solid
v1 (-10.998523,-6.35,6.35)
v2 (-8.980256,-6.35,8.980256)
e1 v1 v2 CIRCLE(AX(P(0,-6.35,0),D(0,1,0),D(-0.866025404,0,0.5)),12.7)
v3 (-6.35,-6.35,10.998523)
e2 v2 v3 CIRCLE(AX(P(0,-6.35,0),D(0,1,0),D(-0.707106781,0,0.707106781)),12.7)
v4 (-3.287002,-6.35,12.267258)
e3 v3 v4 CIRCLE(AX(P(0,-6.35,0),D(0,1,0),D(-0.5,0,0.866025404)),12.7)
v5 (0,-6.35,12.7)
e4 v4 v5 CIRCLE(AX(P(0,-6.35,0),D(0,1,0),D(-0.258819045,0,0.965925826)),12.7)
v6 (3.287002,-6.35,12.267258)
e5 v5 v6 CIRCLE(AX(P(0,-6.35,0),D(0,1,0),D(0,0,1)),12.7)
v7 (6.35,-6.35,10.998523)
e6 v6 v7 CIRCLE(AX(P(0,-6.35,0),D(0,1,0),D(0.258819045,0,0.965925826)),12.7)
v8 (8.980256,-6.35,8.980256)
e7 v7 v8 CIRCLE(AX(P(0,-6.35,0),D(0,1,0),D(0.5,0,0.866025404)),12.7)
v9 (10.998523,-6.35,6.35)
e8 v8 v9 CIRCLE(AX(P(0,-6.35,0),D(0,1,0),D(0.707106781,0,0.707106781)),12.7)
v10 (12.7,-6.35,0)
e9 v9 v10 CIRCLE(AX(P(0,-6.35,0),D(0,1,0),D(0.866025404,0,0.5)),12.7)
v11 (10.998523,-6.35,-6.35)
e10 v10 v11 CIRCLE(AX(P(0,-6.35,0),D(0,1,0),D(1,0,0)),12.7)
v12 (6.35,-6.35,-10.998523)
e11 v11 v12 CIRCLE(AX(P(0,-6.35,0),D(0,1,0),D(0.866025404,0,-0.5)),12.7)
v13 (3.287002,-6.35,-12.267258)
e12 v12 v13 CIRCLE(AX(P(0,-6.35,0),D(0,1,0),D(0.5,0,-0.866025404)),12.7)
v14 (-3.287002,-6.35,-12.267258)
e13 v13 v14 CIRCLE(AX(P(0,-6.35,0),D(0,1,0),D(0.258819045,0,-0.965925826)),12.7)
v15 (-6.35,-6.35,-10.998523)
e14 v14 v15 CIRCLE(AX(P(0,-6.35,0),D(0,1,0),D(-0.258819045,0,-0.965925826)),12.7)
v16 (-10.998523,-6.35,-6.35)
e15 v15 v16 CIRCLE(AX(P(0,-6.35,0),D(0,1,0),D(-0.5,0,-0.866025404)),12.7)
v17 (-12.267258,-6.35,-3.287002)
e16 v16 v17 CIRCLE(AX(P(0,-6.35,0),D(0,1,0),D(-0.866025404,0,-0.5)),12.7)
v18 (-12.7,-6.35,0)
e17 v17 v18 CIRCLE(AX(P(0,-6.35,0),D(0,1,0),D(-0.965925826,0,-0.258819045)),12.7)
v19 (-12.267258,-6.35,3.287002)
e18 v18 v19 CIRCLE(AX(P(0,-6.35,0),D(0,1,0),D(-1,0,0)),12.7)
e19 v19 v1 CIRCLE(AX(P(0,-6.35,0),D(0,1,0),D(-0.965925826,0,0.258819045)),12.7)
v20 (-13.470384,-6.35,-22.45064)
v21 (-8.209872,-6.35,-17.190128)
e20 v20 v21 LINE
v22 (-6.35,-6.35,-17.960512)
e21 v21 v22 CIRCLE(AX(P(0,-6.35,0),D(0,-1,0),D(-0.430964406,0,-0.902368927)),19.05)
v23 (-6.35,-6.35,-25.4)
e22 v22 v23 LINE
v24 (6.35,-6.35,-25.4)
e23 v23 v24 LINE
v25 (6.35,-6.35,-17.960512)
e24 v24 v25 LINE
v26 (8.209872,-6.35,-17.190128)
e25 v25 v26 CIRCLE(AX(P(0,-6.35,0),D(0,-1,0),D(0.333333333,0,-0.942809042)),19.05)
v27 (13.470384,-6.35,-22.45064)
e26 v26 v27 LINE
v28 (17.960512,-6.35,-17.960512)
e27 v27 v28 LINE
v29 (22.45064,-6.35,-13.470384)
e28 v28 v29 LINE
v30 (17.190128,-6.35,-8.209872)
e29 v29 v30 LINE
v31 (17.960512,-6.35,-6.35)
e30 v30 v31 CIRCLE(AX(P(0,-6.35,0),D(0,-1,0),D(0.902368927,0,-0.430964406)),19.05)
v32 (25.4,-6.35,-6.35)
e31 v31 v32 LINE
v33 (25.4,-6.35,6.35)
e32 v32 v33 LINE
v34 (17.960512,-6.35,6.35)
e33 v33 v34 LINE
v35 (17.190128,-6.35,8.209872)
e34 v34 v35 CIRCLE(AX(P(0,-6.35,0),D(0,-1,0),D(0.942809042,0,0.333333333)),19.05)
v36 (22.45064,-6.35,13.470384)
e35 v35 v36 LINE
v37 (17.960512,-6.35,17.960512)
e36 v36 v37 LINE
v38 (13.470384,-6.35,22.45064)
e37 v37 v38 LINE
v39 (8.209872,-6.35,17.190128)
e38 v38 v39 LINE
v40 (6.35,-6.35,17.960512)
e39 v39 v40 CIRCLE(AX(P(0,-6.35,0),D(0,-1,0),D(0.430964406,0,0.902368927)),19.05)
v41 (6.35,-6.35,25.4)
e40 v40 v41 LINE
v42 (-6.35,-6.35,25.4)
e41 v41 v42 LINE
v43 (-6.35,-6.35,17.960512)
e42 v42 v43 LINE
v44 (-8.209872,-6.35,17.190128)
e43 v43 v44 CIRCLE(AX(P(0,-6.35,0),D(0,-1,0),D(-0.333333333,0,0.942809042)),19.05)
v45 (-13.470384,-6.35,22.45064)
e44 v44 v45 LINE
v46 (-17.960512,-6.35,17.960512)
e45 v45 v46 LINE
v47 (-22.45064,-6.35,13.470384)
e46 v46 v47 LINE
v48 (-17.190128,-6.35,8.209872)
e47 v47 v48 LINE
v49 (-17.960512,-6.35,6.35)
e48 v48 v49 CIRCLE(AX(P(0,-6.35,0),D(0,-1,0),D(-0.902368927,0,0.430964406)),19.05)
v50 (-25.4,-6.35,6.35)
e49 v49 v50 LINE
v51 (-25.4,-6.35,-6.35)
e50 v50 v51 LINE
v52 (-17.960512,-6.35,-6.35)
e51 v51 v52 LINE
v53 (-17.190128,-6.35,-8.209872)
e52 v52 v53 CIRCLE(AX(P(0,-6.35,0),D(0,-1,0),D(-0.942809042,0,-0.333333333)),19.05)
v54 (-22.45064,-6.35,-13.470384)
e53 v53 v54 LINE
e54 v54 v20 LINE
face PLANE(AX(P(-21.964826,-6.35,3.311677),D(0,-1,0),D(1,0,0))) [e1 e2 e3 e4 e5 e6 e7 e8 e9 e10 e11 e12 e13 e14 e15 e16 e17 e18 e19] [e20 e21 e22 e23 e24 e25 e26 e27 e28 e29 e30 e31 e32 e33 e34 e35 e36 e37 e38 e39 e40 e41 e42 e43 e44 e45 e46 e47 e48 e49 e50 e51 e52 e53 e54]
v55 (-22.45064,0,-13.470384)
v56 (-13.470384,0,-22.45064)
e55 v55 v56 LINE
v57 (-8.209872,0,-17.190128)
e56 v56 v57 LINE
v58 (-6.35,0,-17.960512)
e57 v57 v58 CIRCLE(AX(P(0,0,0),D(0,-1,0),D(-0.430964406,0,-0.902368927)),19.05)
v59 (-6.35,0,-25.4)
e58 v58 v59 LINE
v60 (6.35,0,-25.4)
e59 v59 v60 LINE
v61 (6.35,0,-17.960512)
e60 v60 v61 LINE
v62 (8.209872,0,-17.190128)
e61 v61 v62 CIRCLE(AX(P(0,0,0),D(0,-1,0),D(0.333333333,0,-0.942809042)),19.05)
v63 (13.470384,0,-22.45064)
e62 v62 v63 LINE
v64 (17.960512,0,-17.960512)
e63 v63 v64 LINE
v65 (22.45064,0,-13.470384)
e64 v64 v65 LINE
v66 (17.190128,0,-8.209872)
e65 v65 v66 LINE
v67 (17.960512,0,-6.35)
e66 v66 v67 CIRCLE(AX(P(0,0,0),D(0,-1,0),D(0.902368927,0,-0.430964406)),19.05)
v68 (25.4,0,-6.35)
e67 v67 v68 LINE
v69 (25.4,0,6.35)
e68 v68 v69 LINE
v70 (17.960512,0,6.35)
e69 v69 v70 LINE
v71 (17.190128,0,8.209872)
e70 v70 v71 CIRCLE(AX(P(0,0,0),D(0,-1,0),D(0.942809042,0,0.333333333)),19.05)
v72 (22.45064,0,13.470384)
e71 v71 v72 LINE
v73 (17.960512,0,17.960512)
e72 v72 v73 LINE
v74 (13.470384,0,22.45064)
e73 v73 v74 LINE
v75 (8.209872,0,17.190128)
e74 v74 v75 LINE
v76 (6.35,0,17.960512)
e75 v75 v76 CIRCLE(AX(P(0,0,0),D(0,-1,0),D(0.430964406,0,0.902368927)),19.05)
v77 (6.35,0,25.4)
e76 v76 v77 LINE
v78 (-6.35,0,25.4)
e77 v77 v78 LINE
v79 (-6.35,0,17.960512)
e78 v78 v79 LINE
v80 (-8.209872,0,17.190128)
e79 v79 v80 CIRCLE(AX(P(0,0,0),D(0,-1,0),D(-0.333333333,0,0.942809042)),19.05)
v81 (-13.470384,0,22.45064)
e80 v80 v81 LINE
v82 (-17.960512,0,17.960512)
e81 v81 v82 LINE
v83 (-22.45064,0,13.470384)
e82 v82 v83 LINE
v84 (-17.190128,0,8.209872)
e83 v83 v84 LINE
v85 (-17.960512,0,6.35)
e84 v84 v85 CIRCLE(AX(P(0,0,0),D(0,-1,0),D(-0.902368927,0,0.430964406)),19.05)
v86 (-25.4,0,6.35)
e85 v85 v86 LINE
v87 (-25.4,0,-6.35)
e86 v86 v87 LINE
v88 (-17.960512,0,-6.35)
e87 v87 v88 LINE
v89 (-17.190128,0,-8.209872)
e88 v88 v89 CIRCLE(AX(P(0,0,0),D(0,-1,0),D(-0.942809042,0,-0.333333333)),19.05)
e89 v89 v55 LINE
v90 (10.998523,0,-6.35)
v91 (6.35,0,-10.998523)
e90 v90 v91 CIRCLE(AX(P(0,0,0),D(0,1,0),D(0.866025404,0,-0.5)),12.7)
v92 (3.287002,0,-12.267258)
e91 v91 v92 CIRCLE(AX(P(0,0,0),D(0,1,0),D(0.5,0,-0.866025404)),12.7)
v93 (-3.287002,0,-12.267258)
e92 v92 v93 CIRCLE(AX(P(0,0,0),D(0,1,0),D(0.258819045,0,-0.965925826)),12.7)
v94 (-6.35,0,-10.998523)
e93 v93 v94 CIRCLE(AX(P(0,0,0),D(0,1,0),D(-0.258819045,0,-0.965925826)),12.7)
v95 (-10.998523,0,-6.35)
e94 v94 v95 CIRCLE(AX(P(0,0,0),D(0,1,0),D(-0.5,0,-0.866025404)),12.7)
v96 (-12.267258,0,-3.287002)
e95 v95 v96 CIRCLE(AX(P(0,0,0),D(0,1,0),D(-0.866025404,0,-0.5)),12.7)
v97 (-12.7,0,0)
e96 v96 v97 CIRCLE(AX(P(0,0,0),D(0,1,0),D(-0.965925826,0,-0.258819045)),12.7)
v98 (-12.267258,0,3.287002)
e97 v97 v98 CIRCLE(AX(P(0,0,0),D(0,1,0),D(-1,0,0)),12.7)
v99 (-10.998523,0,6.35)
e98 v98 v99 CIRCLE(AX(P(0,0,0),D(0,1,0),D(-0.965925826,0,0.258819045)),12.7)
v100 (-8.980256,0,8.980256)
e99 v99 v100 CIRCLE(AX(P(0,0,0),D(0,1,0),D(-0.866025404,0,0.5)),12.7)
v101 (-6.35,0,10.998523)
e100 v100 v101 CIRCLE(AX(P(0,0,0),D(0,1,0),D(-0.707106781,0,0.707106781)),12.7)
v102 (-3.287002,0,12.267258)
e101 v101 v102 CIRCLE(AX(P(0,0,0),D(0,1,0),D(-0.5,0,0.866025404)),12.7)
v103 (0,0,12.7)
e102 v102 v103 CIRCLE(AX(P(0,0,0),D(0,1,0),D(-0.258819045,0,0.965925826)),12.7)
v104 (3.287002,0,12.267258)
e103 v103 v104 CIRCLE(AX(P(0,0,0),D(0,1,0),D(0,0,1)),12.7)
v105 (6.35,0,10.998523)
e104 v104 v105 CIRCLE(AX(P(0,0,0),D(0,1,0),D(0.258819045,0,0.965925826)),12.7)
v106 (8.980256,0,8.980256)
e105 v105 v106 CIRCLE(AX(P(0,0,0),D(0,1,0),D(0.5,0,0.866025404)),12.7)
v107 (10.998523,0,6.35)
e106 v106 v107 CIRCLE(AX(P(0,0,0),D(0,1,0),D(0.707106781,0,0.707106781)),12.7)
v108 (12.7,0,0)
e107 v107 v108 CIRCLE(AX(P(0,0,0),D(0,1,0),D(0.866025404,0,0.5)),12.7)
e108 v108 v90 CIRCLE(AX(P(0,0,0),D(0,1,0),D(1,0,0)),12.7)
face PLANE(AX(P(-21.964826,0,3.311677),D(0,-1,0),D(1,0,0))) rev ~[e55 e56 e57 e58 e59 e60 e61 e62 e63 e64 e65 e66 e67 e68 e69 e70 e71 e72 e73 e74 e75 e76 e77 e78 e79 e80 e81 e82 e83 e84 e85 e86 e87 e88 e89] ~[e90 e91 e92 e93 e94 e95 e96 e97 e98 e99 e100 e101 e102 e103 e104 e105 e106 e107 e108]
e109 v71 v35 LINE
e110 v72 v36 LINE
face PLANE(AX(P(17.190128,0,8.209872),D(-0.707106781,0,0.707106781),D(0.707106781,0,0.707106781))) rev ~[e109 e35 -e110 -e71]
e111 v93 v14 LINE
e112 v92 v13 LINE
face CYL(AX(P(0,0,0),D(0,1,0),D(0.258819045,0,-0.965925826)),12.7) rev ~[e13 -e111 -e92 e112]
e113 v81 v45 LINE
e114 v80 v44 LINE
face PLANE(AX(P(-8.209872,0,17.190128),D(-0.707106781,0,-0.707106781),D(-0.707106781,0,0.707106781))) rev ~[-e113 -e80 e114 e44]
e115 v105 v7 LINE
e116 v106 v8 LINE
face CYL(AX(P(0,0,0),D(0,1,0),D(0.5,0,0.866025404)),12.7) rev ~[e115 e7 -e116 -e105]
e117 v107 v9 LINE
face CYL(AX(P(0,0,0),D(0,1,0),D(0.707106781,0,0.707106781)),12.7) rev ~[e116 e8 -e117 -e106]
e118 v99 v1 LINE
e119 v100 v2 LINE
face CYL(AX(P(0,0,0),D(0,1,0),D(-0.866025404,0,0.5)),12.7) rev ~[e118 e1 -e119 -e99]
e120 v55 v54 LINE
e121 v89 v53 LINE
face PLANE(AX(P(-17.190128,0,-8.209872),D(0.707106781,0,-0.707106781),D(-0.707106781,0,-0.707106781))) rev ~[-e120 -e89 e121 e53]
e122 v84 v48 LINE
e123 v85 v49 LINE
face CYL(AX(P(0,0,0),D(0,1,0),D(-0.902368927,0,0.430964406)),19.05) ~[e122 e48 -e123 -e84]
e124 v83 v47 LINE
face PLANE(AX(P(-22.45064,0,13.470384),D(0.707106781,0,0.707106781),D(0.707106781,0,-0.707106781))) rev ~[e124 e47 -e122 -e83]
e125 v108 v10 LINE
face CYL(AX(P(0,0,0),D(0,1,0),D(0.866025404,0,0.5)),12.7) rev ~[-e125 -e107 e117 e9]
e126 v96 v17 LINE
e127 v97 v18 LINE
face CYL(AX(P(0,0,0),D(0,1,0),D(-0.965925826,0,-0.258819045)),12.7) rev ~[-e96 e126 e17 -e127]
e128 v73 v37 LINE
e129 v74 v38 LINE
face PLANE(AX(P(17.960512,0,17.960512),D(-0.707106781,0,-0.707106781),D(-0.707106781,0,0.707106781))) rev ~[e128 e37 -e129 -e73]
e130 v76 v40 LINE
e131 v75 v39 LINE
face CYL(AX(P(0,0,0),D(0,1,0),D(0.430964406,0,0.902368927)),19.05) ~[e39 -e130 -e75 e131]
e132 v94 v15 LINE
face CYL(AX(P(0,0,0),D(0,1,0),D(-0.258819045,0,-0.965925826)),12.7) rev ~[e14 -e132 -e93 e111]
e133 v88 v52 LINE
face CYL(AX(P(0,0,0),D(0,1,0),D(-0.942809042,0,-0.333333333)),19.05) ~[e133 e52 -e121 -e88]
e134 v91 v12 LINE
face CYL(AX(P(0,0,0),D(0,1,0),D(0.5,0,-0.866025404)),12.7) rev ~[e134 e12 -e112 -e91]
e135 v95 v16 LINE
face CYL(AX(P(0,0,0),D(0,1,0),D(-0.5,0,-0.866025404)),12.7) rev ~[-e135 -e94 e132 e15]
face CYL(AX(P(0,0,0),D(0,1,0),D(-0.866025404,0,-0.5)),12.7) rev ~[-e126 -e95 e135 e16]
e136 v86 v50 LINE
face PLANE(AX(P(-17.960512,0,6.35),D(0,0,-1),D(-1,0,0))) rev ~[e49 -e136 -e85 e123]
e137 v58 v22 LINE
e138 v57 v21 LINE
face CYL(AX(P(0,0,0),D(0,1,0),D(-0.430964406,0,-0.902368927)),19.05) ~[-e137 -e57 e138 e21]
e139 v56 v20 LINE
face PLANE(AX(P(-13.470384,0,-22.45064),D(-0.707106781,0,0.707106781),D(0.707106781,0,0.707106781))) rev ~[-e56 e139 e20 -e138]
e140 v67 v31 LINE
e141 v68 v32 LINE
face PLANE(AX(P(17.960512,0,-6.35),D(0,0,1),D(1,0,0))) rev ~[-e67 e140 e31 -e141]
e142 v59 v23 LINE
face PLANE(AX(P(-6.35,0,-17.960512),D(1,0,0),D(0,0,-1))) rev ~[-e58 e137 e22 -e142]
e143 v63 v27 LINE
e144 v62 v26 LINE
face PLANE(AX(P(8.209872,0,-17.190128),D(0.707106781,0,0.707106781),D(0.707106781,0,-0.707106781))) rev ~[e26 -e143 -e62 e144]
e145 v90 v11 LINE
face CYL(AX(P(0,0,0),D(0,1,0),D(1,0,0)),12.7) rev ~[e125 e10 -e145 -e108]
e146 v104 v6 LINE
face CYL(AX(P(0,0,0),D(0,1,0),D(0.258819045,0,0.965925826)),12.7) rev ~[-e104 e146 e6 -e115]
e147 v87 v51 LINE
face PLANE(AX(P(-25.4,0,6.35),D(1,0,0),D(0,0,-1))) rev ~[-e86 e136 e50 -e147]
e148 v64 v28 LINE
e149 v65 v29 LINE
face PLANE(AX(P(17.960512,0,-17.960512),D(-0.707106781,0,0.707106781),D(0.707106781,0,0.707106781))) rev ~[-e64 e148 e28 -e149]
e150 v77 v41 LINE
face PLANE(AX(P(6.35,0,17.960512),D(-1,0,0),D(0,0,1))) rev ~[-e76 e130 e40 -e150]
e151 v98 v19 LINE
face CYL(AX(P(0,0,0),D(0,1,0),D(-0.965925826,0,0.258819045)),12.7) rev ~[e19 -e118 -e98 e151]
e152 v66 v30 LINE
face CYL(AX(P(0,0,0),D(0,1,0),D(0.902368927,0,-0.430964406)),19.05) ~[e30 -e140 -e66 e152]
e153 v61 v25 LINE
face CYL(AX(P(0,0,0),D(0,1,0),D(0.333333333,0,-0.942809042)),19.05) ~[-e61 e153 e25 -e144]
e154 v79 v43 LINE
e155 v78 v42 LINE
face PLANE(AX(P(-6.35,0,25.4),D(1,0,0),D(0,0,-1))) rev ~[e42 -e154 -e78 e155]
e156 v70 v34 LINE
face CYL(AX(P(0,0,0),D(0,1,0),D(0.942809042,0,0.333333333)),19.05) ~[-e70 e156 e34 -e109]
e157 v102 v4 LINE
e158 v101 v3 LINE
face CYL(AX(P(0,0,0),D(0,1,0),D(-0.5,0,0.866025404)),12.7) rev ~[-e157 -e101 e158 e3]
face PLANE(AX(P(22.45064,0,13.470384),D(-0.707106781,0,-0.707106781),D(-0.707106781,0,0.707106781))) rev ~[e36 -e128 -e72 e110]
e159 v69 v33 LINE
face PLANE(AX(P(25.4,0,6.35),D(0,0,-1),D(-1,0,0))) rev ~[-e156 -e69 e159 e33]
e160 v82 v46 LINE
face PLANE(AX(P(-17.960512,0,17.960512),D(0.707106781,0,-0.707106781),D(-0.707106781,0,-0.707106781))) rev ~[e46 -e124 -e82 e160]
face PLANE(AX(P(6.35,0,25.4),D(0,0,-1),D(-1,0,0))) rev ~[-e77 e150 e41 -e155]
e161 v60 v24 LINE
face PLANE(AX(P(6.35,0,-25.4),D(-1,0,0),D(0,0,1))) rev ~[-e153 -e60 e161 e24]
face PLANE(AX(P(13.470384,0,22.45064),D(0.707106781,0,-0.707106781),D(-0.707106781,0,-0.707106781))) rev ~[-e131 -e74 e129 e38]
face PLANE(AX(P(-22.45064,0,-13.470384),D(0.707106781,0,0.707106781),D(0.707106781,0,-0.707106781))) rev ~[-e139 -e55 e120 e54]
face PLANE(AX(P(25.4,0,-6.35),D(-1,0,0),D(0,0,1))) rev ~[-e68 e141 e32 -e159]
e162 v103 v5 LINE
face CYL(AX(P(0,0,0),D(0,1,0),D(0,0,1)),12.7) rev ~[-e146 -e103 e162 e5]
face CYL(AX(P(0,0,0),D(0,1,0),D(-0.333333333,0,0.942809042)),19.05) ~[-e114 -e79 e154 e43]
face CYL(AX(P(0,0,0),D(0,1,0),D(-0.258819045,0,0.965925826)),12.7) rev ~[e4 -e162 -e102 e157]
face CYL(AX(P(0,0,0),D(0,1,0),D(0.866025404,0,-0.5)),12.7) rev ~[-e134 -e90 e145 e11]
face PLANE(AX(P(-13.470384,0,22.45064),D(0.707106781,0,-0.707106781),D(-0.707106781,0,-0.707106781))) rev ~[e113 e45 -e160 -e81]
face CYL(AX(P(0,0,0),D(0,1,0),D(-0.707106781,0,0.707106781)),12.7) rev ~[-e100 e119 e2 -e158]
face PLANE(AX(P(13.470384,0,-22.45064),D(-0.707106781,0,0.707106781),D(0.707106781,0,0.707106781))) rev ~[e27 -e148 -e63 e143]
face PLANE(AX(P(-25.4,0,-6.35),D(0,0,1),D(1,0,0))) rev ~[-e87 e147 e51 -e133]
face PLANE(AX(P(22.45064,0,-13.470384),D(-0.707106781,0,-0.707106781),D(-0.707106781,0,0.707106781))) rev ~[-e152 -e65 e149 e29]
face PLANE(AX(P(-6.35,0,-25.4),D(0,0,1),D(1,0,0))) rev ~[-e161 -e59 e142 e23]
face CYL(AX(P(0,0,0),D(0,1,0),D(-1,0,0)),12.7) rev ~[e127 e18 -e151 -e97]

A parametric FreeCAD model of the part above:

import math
import FreeCAD as App
import Part
import Sketcher
Q = App.Units.Quantity

doc = App.newDocument("Part")
body = doc.addObject("PartDesign::Body", "Body")

sketch1 = body.newObject("Sketcher::SketchObject", "Sketch")
sketch1.AttachmentSupport = (doc.getObject("XZ_Plane"), [""])
sketch1.MapMode = "FlatFace"
sketch1.addGeometry(Part.LineSegment(App.Vector(-25.4, -6.3, 0), App.Vector(-18, -6.3, 0)), False)
sketch1.addGeometry(Part.ArcOfCircle(Part.Circle(App.Vector(0, 0, 0), App.Vector(0, 0, 1), 19), math.radians(-160.53), math.radians(-154.47)), False)
sketch1.addGeometry(Part.LineSegment(App.Vector(-17.2, -8.2, 0), App.Vector(-22.5, -13.5, 0)), False)
sketch1.addGeometry(Part.LineSegment(App.Vector(-22.5, -13.5, 0), App.Vector(-13.5, -22.5, 0)), False)
sketch1.addGeometry(Part.LineSegment(App.Vector(-13.5, -22.5, 0), App.Vector(-8.2, -17.2, 0)), False)
sketch1.addGeometry(Part.ArcOfCircle(Part.Circle(App.Vector(0, 0, 0), App.Vector(0, 0, 1), 19), math.radians(-115.53), math.radians(-109.47)), False)
sketch1.addGeometry(Part.LineSegment(App.Vector(-6.3, -18, 0), App.Vector(-6.3, -25.4, 0)), False)
sketch1.addGeometry(Part.LineSegment(App.Vector(-6.3, -25.4, 0), App.Vector(6.3, -25.4, 0)), False)
sketch1.addGeometry(Part.LineSegment(App.Vector(6.3, -25.4, 0), App.Vector(6.3, -18, 0)), False)
sketch1.addGeometry(Part.ArcOfCircle(Part.Circle(App.Vector(0, 0, 0), App.Vector(0, 0, 1), 19), math.radians(-70.53), math.radians(-64.47)), False)
sketch1.addGeometry(Part.LineSegment(App.Vector(8.2, -17.2, 0), App.Vector(13.5, -22.5, 0)), False)
sketch1.addGeometry(Part.LineSegment(App.Vector(13.5, -22.5, 0), App.Vector(18, -18, 0)), False)
sketch1.addGeometry(Part.LineSegment(App.Vector(18, -18, 0), App.Vector(22.5, -13.5, 0)), False)
sketch1.addGeometry(Part.LineSegment(App.Vector(22.5, -13.5, 0), App.Vector(17.2, -8.2, 0)), False)
sketch1.addGeometry(Part.ArcOfCircle(Part.Circle(App.Vector(0, 0, 0), App.Vector(0, 0, 1), 19), math.radians(-25.53), math.radians(-19.47)), False)
sketch1.addGeometry(Part.LineSegment(App.Vector(18, -6.3, 0), App.Vector(25.4, -6.3, 0)), False)
sketch1.addGeometry(Part.LineSegment(App.Vector(25.4, -6.3, 0), App.Vector(25.4, 6.3, 0)), False)
sketch1.addGeometry(Part.LineSegment(App.Vector(25.4, 6.3, 0), App.Vector(18, 6.3, 0)), False)
sketch1.addGeometry(Part.ArcOfCircle(Part.Circle(App.Vector(0, 0, 0), App.Vector(0, 0, 1), 19), math.radians(19.47), math.radians(25.53)), False)
sketch1.addGeometry(Part.LineSegment(App.Vector(17.2, 8.2, 0), App.Vector(22.5, 13.5, 0)), False)
sketch1.addGeometry(Part.LineSegment(App.Vector(22.5, 13.5, 0), App.Vector(18, 18, 0)), False)
sketch1.addGeometry(Part.LineSegment(App.Vector(18, 18, 0), App.Vector(13.5, 22.5, 0)), False)
sketch1.addGeometry(Part.LineSegment(App.Vector(13.5, 22.5, 0), App.Vector(8.2, 17.2, 0)), False)
sketch1.addGeometry(Part.ArcOfCircle(Part.Circle(App.Vector(0, 0, 0), App.Vector(0, 0, 1), 19), math.radians(64.47), math.radians(70.53)), False)
sketch1.addGeometry(Part.LineSegment(App.Vector(6.3, 18, 0), App.Vector(6.3, 25.4, 0)), False)
sketch1.addGeometry(Part.LineSegment(App.Vector(6.3, 25.4, 0), App.Vector(-6.3, 25.4, 0)), False)
sketch1.addGeometry(Part.LineSegment(App.Vector(-6.3, 25.4, 0), App.Vector(-6.3, 18, 0)), False)
sketch1.addGeometry(Part.ArcOfCircle(Part.Circle(App.Vector(0, 0, 0), App.Vector(0, 0, 1), 19), math.radians(109.47), math.radians(115.53)), False)
sketch1.addGeometry(Part.LineSegment(App.Vector(-8.2, 17.2, 0), App.Vector(-13.5, 22.5, 0)), False)
sketch1.addGeometry(Part.LineSegment(App.Vector(-13.5, 22.5, 0), App.Vector(-18, 18, 0)), False)
sketch1.addGeometry(Part.LineSegment(App.Vector(-18, 18, 0), App.Vector(-22.5, 13.5, 0)), False)
sketch1.addGeometry(Part.LineSegment(App.Vector(-22.5, 13.5, 0), App.Vector(-17.2, 8.2, 0)), False)
sketch1.addGeometry(Part.ArcOfCircle(Part.Circle(App.Vector(0, 0, 0), App.Vector(0, 0, 1), 19), math.radians(154.47), math.radians(160.53)), False)
sketch1.addGeometry(Part.LineSegment(App.Vector(-18, 6.3, 0), App.Vector(-25.4, 6.3, 0)), False)
sketch1.addGeometry(Part.LineSegment(App.Vector(-25.4, 6.3, 0), App.Vector(-25.4, -6.3, 0)), False)
sketch1.addGeometry(Part.ArcOfCircle(Part.Circle(App.Vector(0, 0, 0), App.Vector(0, 0, 1), 12.7), math.radians(-150), math.radians(-120)), False)
sketch1.addGeometry(Part.ArcOfCircle(Part.Circle(App.Vector(0, 0, 0), App.Vector(0, 0, 1), 12.7), math.radians(-165), math.radians(-150)), False)
sketch1.addGeometry(Part.ArcOfCircle(Part.Circle(App.Vector(0, 0, 0), App.Vector(0, 0, 1), 12.7), math.radians(-180), math.radians(-165)), False)
sketch1.addGeometry(Part.ArcOfCircle(Part.Circle(App.Vector(0, 0, 0), App.Vector(0, 0, 1), 12.7), math.radians(165), math.radians(180)), False)
sketch1.addGeometry(Part.ArcOfCircle(Part.Circle(App.Vector(0, 0, 0), App.Vector(0, 0, 1), 12.7), math.radians(150), math.radians(165)), False)
sketch1.addGeometry(Part.ArcOfCircle(Part.Circle(App.Vector(0, 0, 0), App.Vector(0, 0, 1), 12.7), math.radians(135), math.radians(150)), False)
sketch1.addGeometry(Part.ArcOfCircle(Part.Circle(App.Vector(0, 0, 0), App.Vector(0, 0, 1), 12.7), math.radians(120), math.radians(135)), False)
sketch1.addGeometry(Part.ArcOfCircle(Part.Circle(App.Vector(0, 0, 0), App.Vector(0, 0, 1), 12.7), math.radians(105), math.radians(120)), False)
sketch1.addGeometry(Part.ArcOfCircle(Part.Circle(App.Vector(0, 0, 0), App.Vector(0, 0, 1), 12.7), math.radians(90), math.radians(105)), False)
sketch1.addGeometry(Part.ArcOfCircle(Part.Circle(App.Vector(0, 0, 0), App.Vector(0, 0, 1), 12.7), math.radians(75), math.radians(90)), False)
sketch1.addGeometry(Part.ArcOfCircle(Part.Circle(App.Vector(0, 0, 0), App.Vector(0, 0, 1), 12.7), math.radians(60), math.radians(75)), False)
sketch1.addGeometry(Part.ArcOfCircle(Part.Circle(App.Vector(0, 0, 0), App.Vector(0, 0, 1), 12.7), math.radians(45), math.radians(60)), False)
sketch1.addGeometry(Part.ArcOfCircle(Part.Circle(App.Vector(0, 0, 0), App.Vector(0, 0, 1), 12.7), math.radians(30), math.radians(45)), False)
sketch1.addGeometry(Part.ArcOfCircle(Part.Circle(App.Vector(0, 0, 0), App.Vector(0, 0, 1), 12.7), math.radians(0), math.radians(30)), False)
sketch1.addGeometry(Part.ArcOfCircle(Part.Circle(App.Vector(0, 0, 0), App.Vector(0, 0, 1), 12.7), math.radians(-30), math.radians(0)), False)
sketch1.addGeometry(Part.ArcOfCircle(Part.Circle(App.Vector(0, 0, 0), App.Vector(0, 0, 1), 12.7), math.radians(-60), math.radians(-30)), False)
sketch1.addGeometry(Part.ArcOfCircle(Part.Circle(App.Vector(0, 0, 0), App.Vector(0, 0, 1), 12.7), math.radians(-75), math.radians(-60)), False)
sketch1.addGeometry(Part.ArcOfCircle(Part.Circle(App.Vector(0, 0, 0), App.Vector(0, 0, 1), 12.7), math.radians(-105), math.radians(-75)), False)
sketch1.addGeometry(Part.ArcOfCircle(Part.Circle(App.Vector(0, 0, 0), App.Vector(0, 0, 1), 12.7), math.radians(-120), math.radians(-105)), False)
sketch1.addConstraint(Sketcher.Constraint("Coincident", 0, 2, 1, 1))
sketch1.addConstraint(Sketcher.Constraint("Coincident", 1, 2, 2, 1))
sketch1.addConstraint(Sketcher.Constraint("Coincident", 2, 2, 3, 1))
sketch1.addConstraint(Sketcher.Constraint("Coincident", 3, 2, 4, 1))
sketch1.addConstraint(Sketcher.Constraint("Coincident", 4, 2, 5, 1))
sketch1.addConstraint(Sketcher.Constraint("Coincident", 5, 2, 6, 1))
sketch1.addConstraint(Sketcher.Constraint("Coincident", 6, 2, 7, 1))
sketch1.addConstraint(Sketcher.Constraint("Coincident", 7, 2, 8, 1))
sketch1.addConstraint(Sketcher.Constraint("Coincident", 8, 2, 9, 1))
sketch1.addConstraint(Sketcher.Constraint("Coincident", 9, 2, 10, 1))
sketch1.addConstraint(Sketcher.Constraint("Coincident", 10, 2, 11, 1))
sketch1.addConstraint(Sketcher.Constraint("Coincident", 11, 2, 12, 1))
sketch1.addConstraint(Sketcher.Constraint("Coincident", 12, 2, 13, 1))
sketch1.addConstraint(Sketcher.Constraint("Coincident", 13, 2, 14, 1))
sketch1.addConstraint(Sketcher.Constraint("Coincident", 14, 2, 15, 1))
sketch1.addConstraint(Sketcher.Constraint("Coincident", 15, 2, 16, 1))
sketch1.addConstraint(Sketcher.Constraint("Coincident", 16, 2, 17, 1))
sketch1.addConstraint(Sketcher.Constraint("Coincident", 17, 2, 18, 1))
sketch1.addConstraint(Sketcher.Constraint("Coincident", 18, 2, 19, 1))
sketch1.addConstraint(Sketcher.Constraint("Coincident", 19, 2, 20, 1))
sketch1.addConstraint(Sketcher.Constraint("Coincident", 20, 2, 21, 1))
sketch1.addConstraint(Sketcher.Constraint("Coincident", 21, 2, 22, 1))
sketch1.addConstraint(Sketcher.Constraint("Coincident", 22, 2, 23, 1))
sketch1.addConstraint(Sketcher.Constraint("Coincident", 23, 2, 24, 1))
sketch1.addConstraint(Sketcher.Constraint("Coincident", 24, 2, 25, 1))
sketch1.addConstraint(Sketcher.Constraint("Coincident", 25, 2, 26, 1))
sketch1.addConstraint(Sketcher.Constraint("Coincident", 26, 2, 27, 1))
sketch1.addConstraint(Sketcher.Constraint("Coincident", 27, 2, 28, 1))
sketch1.addConstraint(Sketcher.Constraint("Coincident", 28, 2, 29, 1))
sketch1.addConstraint(Sketcher.Constraint("Coincident", 29, 2, 30, 1))
sketch1.addConstraint(Sketcher.Constraint("Coincident", 30, 2, 31, 1))
sketch1.addConstraint(Sketcher.Constraint("Coincident", 31, 2, 32, 1))
sketch1.addConstraint(Sketcher.Constraint("Coincident", 32, 2, 33, 1))
sketch1.addConstraint(Sketcher.Constraint("Coincident", 33, 2, 34, 1))
sketch1.addConstraint(Sketcher.Constraint("Coincident", 34, 2, 0, 1))
sketch1.addConstraint(Sketcher.Constraint("Tangent", 35, 1, 36, 2))
sketch1.addConstraint(Sketcher.Constraint("Tangent", 36, 1, 37, 2))
sketch1.addConstraint(Sketcher.Constraint("Tangent", 37, 1, 38, 2))
sketch1.addConstraint(Sketcher.Constraint("Tangent", 38, 1, 39, 2))
sketch1.addConstraint(Sketcher.Constraint("Tangent", 39, 1, 40, 2))
sketch1.addConstraint(Sketcher.Constraint("Tangent", 40, 1, 41, 2))
sketch1.addConstraint(Sketcher.Constraint("Tangent", 41, 1, 42, 2))
sketch1.addConstraint(Sketcher.Constraint("Tangent", 42, 1, 43, 2))
sketch1.addConstraint(Sketcher.Constraint("Tangent", 43, 1, 44, 2))
sketch1.addConstraint(Sketcher.Constraint("Tangent", 44, 1, 45, 2))
sketch1.addConstraint(Sketcher.Constraint("Tangent", 45, 1, 46, 2))
sketch1.addConstraint(Sketcher.Constraint("Tangent", 46, 1, 47, 2))
sketch1.addConstraint(Sketcher.Constraint("Tangent", 47, 1, 48, 2))
sketch1.addConstraint(Sketcher.Constraint("Tangent", 48, 1, 49, 2))
sketch1.addConstraint(Sketcher.Constraint("Tangent", 49, 1, 50, 2))
sketch1.addConstraint(Sketcher.Constraint("Tangent", 50, 1, 51, 2))
sketch1.addConstraint(Sketcher.Constraint("Tangent", 51, 1, 52, 2))
sketch1.addConstraint(Sketcher.Constraint("Tangent", 52, 1, 53, 2))
sketch1.addConstraint(Sketcher.Constraint("Tangent", 53, 1, 35, 2))
sketch1.addConstraint(Sketcher.Constraint("Horizontal", 0))
sketch1.addConstraint(Sketcher.Constraint("Vertical", 6))
sketch1.addConstraint(Sketcher.Constraint("Horizontal", 7))
sketch1.addConstraint(Sketcher.Constraint("Vertical", 8))
sketch1.addConstraint(Sketcher.Constraint("Horizontal", 15))
sketch1.addConstraint(Sketcher.Constraint("Vertical", 16))
sketch1.addConstraint(Sketcher.Constraint("Horizontal", 17))
sketch1.addConstraint(Sketcher.Constraint("Vertical", 24))
sketch1.addConstraint(Sketcher.Constraint("Horizontal", 25))
sketch1.addConstraint(Sketcher.Constraint("Vertical", 26))
sketch1.addConstraint(Sketcher.Constraint("Horizontal", 33))
sketch1.addConstraint(Sketcher.Constraint("Vertical", 34))
sketch1.addConstraint(Sketcher.Constraint("Coincident", 1, 3, -1, 1))
sketch1.addConstraint(Sketcher.Constraint("Coincident", 5, 3, -1, 1))
sketch1.addConstraint(Sketcher.Constraint("Coincident", 9, 3, -1, 1))
sketch1.addConstraint(Sketcher.Constraint("Coincident", 14, 3, -1, 1))
sketch1.addConstraint(Sketcher.Constraint("Coincident", 18, 3, -1, 1))
sketch1.addConstraint(Sketcher.Constraint("Coincident", 23, 3, -1, 1))
sketch1.addConstraint(Sketcher.Constraint("Coincident", 27, 3, -1, 1))
sketch1.addConstraint(Sketcher.Constraint("Coincident", 32, 3, -1, 1))
sketch1.addConstraint(Sketcher.Constraint("Coincident", 35, 3, -1, 1))
sketch1.addConstraint(Sketcher.Constraint("Coincident", 37, 3, -1, 1))
sketch1.addConstraint(Sketcher.Constraint("Coincident", 39, 3, -1, 1))
sketch1.addConstraint(Sketcher.Constraint("Coincident", 41, 3, -1, 1))
sketch1.addConstraint(Sketcher.Constraint("Coincident", 43, 3, -1, 1))
sketch1.addConstraint(Sketcher.Constraint("Coincident", 45, 3, -1, 1))
sketch1.addConstraint(Sketcher.Constraint("Coincident", 47, 3, -1, 1))
sketch1.addConstraint(Sketcher.Constraint("Coincident", 49, 3, -1, 1))
sketch1.addConstraint(Sketcher.Constraint("Coincident", 51, 3, -1, 1))
sketch1.addConstraint(Sketcher.Constraint("Equal", 1, 5))
sketch1.addConstraint(Sketcher.Constraint("Equal", 5, 9))
sketch1.addConstraint(Sketcher.Constraint("Equal", 9, 14))
sketch1.addConstraint(Sketcher.Constraint("Equal", 14, 18))
sketch1.addConstraint(Sketcher.Constraint("Equal", 18, 23))
sketch1.addConstraint(Sketcher.Constraint("Equal", 23, 27))
sketch1.addConstraint(Sketcher.Constraint("Equal", 27, 32))
sketch1.addConstraint(Sketcher.Constraint("Symmetric", 2, 2, 19, 2, -1, 1))
sketch1.addConstraint(Sketcher.Constraint("Symmetric", 3, 2, 21, 2, -1, 1))
sketch1.addConstraint(Sketcher.Constraint("Symmetric", 6, 2, 24, 2, -1, 1))
sketch1.addConstraint(Sketcher.Constraint("Symmetric", 10, 2, 28, 2, -1, 1))
sketch1.addConstraint(Sketcher.Constraint("Symmetric", 11, 2, 29, 2, -1, 1))
sketch1.addConstraint(Sketcher.Constraint("Symmetric", 12, 2, 30, 2, -1, 1))
sketch1.addConstraint(Sketcher.Constraint("Symmetric", 15, 2, 33, 2, -1, 1))
sketch1.addConstraint(Sketcher.Constraint("Symmetric", 3, 2, 10, 2, -2))
sketch1.addConstraint(Sketcher.Constraint("Symmetric", 2, 2, 12, 2, -2))
sketch1.addConstraint(Sketcher.Constraint("Symmetric", 20, 2, 29, 2, -2))
sketch1.addConstraint(Sketcher.Constraint("PointOnObject", 37, 1, -1))
sketch1.addConstraint(Sketcher.Constraint("PointOnObject", 43, 1, -2))
sketch1.addConstraint(Sketcher.Constraint("PointOnObject", 48, 1, -1))
sketch1.addConstraint(Sketcher.Constraint("Perpendicular", 2, 3))
sketch1.addConstraint(Sketcher.Constraint("Perpendicular", 3, 4))
sketch1.addConstraint(Sketcher.Constraint("Perpendicular", 4, 10))
sketch1.addConstraint(Sketcher.Constraint("Perpendicular", 10, 11))
sketch1.addConstraint(Sketcher.Constraint("Parallel", 11, 12))
sketch1.addConstraint(Sketcher.Constraint("Perpendicular", 12, 13))
sketch1.addConstraint(Sketcher.Constraint("Perpendicular", 13, 19))
sketch1.addConstraint(Sketcher.Constraint("Perpendicular", 21, 22))
sketch1.addConstraint(Sketcher.Constraint("Perpendicular", 22, 28))
sketch1.addConstraint(Sketcher.Constraint("Perpendicular", 30, 31))
sketch1.addConstraint(Sketcher.Constraint("Horizontal", 5, 2, 8, 2))
sketch1.addConstraint(Sketcher.Constraint("Horizontal", 8, 2, 11, 2))
sketch1.addConstraint(Sketcher.Constraint("Horizontal", 0, 2, 14, 2))
sketch1.addConstraint(Sketcher.Constraint("Horizontal", 23, 2, 26, 2))
sketch1.addConstraint(Sketcher.Constraint("Horizontal", 17, 2, 32, 2))
sketch1.addConstraint(Sketcher.Constraint("Horizontal", 34, 2, 35, 1))
sketch1.addConstraint(Sketcher.Constraint("Horizontal", 33, 2, 39, 1))
sketch1.addConstraint(Sketcher.Constraint("Horizontal", 42, 1, 44, 1))
sketch1.addConstraint(Sketcher.Constraint("Horizontal", 41, 1, 45, 1))
sketch1.addConstraint(Sketcher.Constraint("Horizontal", 40, 1, 46, 1))
sketch1.addConstraint(Sketcher.Constraint("Horizontal", 39, 1, 47, 1))
sketch1.addConstraint(Sketcher.Constraint("Horizontal", 35, 1, 49, 1))
sketch1.addConstraint(Sketcher.Constraint("Horizontal", 51, 1, 52, 1))
sketch1.addConstraint(Sketcher.Constraint("Horizontal", 50, 1, 53, 1))
sketch1.addConstraint(Sketcher.Constraint("Vertical", 11, 2, 14, 2))
sketch1.addConstraint(Sketcher.Constraint("Vertical", 36, 1, 38, 1))
sketch1.addConstraint(Sketcher.Constraint("Vertical", 26, 2, 41, 1))
sketch1.addConstraint(Sketcher.Constraint("Vertical", 45, 1, 50, 1))
sketch1.addConstraint(Sketcher.Constraint("Vertical", 44, 1, 51, 1))
sketch1.addConstraint(Sketcher.Constraint("Equal", 33, 6))
sketch1.addConstraint(Sketcher.Constraint("Equal", 25, 16))
sketch1.addConstraint(Sketcher.Constraint("Equal", 2, 4))
sketch1.addConstraint(Sketcher.Constraint("Radius", 35, Q("0.5 in")))
sketch1.addConstraint(Sketcher.Constraint("Radius", 1, Q("0.75 in")))
sketch1.addConstraint(Sketcher.Constraint("DistanceX", 7, 1, 7, 2, Q("0.5 in")))
sketch1.addConstraint(Sketcher.Constraint("DistanceY", 6, 2, -1, 1, Q("1 in")))
sketch1.addConstraint(Sketcher.Constraint("Distance", 3, Q("0.5 in")))
sketch1.addConstraint(Sketcher.Constraint("DistanceY", 36, 1, -1, 1, Q("3.287002 mm")))
sketch1.addConstraint(Sketcher.Constraint("DistanceX", 42, 1, -1, 1, Q("3.287002 mm")))
sketch1.addConstraint(Sketcher.Constraint("DistanceX", 40, 1, -1, 1, Q("8.980256 mm")))
pad1 = body.newObject("PartDesign::Pad", "Pad")
pad1.Profile = sketch1
pad1.Length = Q("0.25 in")

doc.recompute()
